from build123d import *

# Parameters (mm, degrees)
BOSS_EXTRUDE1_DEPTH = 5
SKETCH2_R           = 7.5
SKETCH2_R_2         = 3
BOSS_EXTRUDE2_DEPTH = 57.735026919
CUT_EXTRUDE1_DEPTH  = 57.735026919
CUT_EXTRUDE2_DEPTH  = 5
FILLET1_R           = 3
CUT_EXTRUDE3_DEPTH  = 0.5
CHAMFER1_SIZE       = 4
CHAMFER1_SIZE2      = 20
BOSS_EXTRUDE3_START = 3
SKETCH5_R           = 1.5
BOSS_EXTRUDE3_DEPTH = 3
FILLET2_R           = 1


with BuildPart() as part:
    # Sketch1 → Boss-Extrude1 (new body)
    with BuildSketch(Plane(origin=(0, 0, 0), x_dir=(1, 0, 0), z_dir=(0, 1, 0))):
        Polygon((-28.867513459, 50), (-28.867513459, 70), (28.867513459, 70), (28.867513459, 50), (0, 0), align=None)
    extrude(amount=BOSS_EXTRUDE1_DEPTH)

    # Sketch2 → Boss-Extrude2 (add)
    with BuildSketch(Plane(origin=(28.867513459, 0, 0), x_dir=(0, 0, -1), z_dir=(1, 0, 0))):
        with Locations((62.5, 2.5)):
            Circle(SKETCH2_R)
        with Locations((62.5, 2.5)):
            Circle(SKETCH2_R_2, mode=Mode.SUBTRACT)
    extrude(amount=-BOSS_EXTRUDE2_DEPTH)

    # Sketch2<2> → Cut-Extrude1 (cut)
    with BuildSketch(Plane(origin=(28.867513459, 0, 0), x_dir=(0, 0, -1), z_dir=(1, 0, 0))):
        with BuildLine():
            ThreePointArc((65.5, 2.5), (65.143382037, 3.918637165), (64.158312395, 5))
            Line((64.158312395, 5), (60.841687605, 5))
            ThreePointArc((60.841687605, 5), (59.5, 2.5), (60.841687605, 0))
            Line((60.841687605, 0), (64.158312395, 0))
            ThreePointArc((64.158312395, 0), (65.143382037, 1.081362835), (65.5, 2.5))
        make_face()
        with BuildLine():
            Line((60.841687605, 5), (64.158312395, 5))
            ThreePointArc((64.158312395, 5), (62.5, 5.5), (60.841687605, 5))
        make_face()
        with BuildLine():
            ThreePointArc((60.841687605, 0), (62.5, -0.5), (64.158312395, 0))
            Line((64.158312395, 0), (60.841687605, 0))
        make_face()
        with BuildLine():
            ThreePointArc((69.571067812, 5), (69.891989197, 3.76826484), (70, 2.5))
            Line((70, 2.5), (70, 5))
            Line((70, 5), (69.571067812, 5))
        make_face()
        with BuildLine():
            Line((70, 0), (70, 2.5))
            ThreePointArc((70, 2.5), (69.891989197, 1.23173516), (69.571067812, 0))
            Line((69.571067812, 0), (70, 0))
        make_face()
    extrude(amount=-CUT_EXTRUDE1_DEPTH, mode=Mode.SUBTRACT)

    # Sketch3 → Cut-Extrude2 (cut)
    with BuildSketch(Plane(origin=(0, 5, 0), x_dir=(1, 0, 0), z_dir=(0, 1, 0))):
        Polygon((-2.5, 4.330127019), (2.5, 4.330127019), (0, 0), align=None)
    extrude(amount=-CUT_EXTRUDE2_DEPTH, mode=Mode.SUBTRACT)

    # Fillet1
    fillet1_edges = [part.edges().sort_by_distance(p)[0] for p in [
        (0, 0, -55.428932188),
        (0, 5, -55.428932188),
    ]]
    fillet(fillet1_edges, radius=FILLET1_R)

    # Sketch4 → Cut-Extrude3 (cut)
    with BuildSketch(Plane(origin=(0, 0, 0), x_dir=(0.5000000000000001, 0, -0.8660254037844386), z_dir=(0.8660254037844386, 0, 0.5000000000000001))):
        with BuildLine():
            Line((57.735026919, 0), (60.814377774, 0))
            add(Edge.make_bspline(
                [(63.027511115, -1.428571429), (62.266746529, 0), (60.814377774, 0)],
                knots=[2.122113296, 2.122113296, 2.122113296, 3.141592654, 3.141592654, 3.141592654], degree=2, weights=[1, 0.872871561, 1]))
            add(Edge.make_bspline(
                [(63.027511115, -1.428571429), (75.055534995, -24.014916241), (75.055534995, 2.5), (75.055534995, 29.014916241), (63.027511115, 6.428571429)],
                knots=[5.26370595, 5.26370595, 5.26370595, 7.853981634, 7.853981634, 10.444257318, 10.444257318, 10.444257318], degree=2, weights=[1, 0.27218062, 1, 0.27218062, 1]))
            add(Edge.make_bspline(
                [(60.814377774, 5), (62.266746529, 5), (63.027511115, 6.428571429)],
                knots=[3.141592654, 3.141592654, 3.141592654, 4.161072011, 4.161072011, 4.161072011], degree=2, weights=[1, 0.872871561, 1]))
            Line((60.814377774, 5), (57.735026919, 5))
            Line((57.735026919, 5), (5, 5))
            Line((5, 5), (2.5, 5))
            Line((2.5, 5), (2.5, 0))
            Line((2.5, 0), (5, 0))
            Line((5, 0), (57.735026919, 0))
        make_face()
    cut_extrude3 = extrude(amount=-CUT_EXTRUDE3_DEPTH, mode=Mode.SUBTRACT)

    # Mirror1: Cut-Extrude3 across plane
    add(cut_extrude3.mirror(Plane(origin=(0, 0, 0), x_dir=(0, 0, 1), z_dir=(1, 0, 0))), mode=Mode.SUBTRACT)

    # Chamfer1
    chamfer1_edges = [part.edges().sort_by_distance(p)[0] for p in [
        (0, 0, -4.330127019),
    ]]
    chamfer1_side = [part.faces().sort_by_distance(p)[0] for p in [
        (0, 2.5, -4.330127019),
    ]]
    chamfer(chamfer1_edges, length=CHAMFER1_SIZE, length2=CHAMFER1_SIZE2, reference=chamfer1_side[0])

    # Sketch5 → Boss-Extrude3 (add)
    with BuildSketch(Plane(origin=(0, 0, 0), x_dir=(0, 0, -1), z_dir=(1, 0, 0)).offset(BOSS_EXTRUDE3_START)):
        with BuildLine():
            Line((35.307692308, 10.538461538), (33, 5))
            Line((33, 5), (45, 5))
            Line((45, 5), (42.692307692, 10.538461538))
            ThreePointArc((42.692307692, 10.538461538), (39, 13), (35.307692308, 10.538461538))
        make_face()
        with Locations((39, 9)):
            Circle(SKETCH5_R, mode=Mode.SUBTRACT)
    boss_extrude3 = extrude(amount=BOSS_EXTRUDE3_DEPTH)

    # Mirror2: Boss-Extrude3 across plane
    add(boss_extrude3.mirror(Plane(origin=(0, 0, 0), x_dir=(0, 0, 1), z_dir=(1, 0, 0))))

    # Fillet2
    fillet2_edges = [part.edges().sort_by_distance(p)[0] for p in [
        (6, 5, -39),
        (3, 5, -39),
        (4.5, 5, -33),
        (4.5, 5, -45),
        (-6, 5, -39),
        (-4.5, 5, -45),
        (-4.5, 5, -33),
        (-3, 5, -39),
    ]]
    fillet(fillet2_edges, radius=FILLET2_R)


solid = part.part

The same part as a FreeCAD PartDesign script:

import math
import FreeCAD as App
import Part
import Sketcher
from FreeCAD import Vector
Q = App.Units.Quantity


def edges_at(feature, points):
    """Names of the edges that pass closest to the given points."""
    edges = feature.Shape.Edges
    near = lambda p: min(range(len(edges)), key=lambda i: edges[i].distToShape(Part.Vertex(*p))[0])
    return sorted({f"Edge{near(p) + 1}" for p in points})

doc = App.newDocument("Part")
body = doc.addObject("PartDesign::Body", "Body")

sketch1 = body.newObject("Sketcher::SketchObject", "Sketch")
sketch1.AttachmentSupport = (doc.getObject("XZ_Plane"), [""])
sketch1.MapMode = "FlatFace"
sketch1.addGeometry([
    Part.LineSegment(Vector(-28.867513, -70, 0), Vector(-28.867513, -50, 0)),
    Part.LineSegment(Vector(-28.867513, -50, 0), Vector(0, 0, 0)),
    Part.LineSegment(Vector(0, 0, 0), Vector(28.867513, -50, 0)),
    Part.LineSegment(Vector(28.867513, -50, 0), Vector(28.867513, -70, 0)),
    Part.LineSegment(Vector(28.867513, -70, 0), Vector(-28.867513, -70, 0)),
], False)
sketch1.addConstraint([
    Sketcher.Constraint("Coincident", 0, 2, 1, 1),
    Sketcher.Constraint("Coincident", 1, 2, 2, 1),
    Sketcher.Constraint("Coincident", 2, 2, 3, 1),
    Sketcher.Constraint("Coincident", 3, 2, 4, 1),
    Sketcher.Constraint("Coincident", 4, 2, 0, 1),
    Sketcher.Constraint("Vertical", 0),
    Sketcher.Constraint("Vertical", 3),
    Sketcher.Constraint("Horizontal", 4),
    Sketcher.Constraint("Coincident", 1, 2, -1, 1),
    Sketcher.Constraint("Symmetric", 0, 2, 2, 2, -2),
    Sketcher.Constraint("DistanceY", 0, 1, 0, 2, Q("20 mm")),
    Sketcher.Constraint("Angle", 1, Q("60 deg")),
    Sketcher.Constraint("DistanceY", 0, 2, -1, 1, Q("50 mm")),
])
pad1 = body.newObject("PartDesign::Pad", "Pad")
pad1.Profile = sketch1
pad1.Length = 5
pad1.Reversed = True

sketch2 = body.newObject("Sketcher::SketchObject", "Sketch001")
sketch2.AttachmentSupport = (doc.getObject("YZ_Plane"), [""])
sketch2.MapMode = "FlatFace"
sketch2.AttachmentOffset = App.Placement(Vector(0, 0, 28.867513), App.Rotation())
sketch2.addGeometry([
    Part.Circle(Vector(2.5, -62.5, 0), Vector(0, 0, 1), 7.5),
    Part.Circle(Vector(2.5, -62.5, 0), Vector(0, 0, 1), 3),
], False)
sketch2.addConstraint([
    Sketcher.Constraint("Coincident", 1, 3, 0, 3),
    Sketcher.Constraint("Diameter", 0, Q("15 mm")),
    Sketcher.Constraint("Diameter", 1, Q("6 mm")),
    Sketcher.Constraint("DistanceX", -1, 1, 0, 3, Q("2.5 mm")),
    Sketcher.Constraint("DistanceY", 0, 3, -1, 1, Q("62.5 mm")),
])
pad2 = body.newObject("PartDesign::Pad", "Pad001")
pad2.Profile = sketch2
pad2.Length = 57.735027
pad2.Reversed = True

sketch3 = body.newObject("Sketcher::SketchObject", "Sketch002")
sketch3.AttachmentSupport = (doc.getObject("YZ_Plane"), [""])
sketch3.MapMode = "FlatFace"
sketch3.AttachmentOffset = App.Placement(Vector(0, 0, 28.867513), App.Rotation())
sketch3.addGeometry([
    Part.ArcOfCircle(Part.Circle(Vector(2.5, -62.5, 0), Vector(0, 0, 1), 3), math.radians(-90), math.radians(-33.55731)),
    Part.ArcOfCircle(Part.Circle(Vector(2.5, -62.5, 0), Vector(0, 0, 1), 3), math.radians(-33.55731), math.radians(33.55731)),
    Part.ArcOfCircle(Part.Circle(Vector(2.5, -62.5, 0), Vector(0, 0, 1), 3), math.radians(33.55731), math.radians(146.44269)),
    Part.ArcOfCircle(Part.Circle(Vector(2.5, -62.5, 0), Vector(0, 0, 1), 3), math.radians(146.44269), math.radians(213.55731)),
    Part.ArcOfCircle(Part.Circle(Vector(2.5, -62.5, 0), Vector(0, 0, 1), 3), math.radians(-146.44269), math.radians(-90)),
    Part.ArcOfCircle(Part.Circle(Vector(2.5, -62.5, 0), Vector(0, 0, 1), 7.5), math.radians(-90), math.radians(-70.528779)),
    Part.LineSegment(Vector(2.5, -70, 0), Vector(5, -70, 0)),
    Part.LineSegment(Vector(5, -70, 0), Vector(5, -69.571068, 0)),
    Part.LineSegment(Vector(0, -70, 0), Vector(2.5, -70, 0)),
    Part.ArcOfCircle(Part.Circle(Vector(2.5, -62.5, 0), Vector(0, 0, 1), 7.5), math.radians(-109.471221), math.radians(-90)),
    Part.LineSegment(Vector(0, -69.571068, 0), Vector(0, -70, 0)),
], False)
sketch3.addConstraint([
    Sketcher.Constraint("Tangent", 0, 2, 1, 1),
    Sketcher.Constraint("Tangent", 1, 2, 2, 1),
    Sketcher.Constraint("Tangent", 2, 2, 3, 1),
    Sketcher.Constraint("Tangent", 3, 2, 4, 1),
    Sketcher.Constraint("Tangent", 4, 2, 0, 1),
    Sketcher.Constraint("Tangent", 5, 1, 6, 1),
    Sketcher.Constraint("Coincident", 6, 2, 7, 1),
    Sketcher.Constraint("Coincident", 7, 2, 5, 2),
    Sketcher.Constraint("Tangent", 8, 2, 9, 2),
    Sketcher.Constraint("Coincident", 9, 1, 10, 1),
    Sketcher.Constraint("Coincident", 10, 2, 8, 1),
    Sketcher.Constraint("Horizontal", 6),
    Sketcher.Constraint("Vertical", 7),
    Sketcher.Constraint("Horizontal", 8),
    Sketcher.Constraint("Vertical", 10),
    Sketcher.Constraint("Coincident", 2, 3, 0, 3),
    Sketcher.Constraint("Coincident", 5, 3, 0, 3),
    Sketcher.Constraint("Coincident", 9, 3, 0, 3),
    Sketcher.Constraint("Equal", 5, 9),
    Sketcher.Constraint("PointOnObject", 2, 2, -2),
    Sketcher.Constraint("PointOnObject", 3, 2, -2),
    Sketcher.Constraint("PointOnObject", 9, 1, -2),
    Sketcher.Constraint("Horizontal", 1, 2, 2, 2),
    Sketcher.Constraint("Horizontal", 0, 2, 3, 2),
    Sketcher.Constraint("Horizontal", 7, 2, 9, 1),
    Sketcher.Constraint("Vertical", 9, 3, 4, 2),
    Sketcher.Constraint("Radius", 0, Q("3 mm")),
    Sketcher.Constraint("Radius", 5, Q("7.5 mm")),
    Sketcher.Constraint("DistanceX", 6, 1, 6, 2, Q("2.5 mm")),
    Sketcher.Constraint("DistanceY", 5, 1, -1, 1, Q("70 mm")),
])
pocket1 = body.newObject("PartDesign::Pocket", "Pocket")
pocket1.Profile = sketch3
pocket1.Length = 57.735027

sketch4 = body.newObject("Sketcher::SketchObject", "Sketch003")
sketch4.AttachmentSupport = (doc.getObject("XZ_Plane"), [""])
sketch4.MapMode = "FlatFace"
sketch4.AttachmentOffset = App.Placement(Vector(0, 0, -5), App.Rotation())
sketch4.addGeometry([
    Part.LineSegment(Vector(2.5, -4.330127, 0), Vector(-2.5, -4.330127, 0)),
    Part.LineSegment(Vector(-2.5, -4.330127, 0), Vector(0, 0, 0)),
    Part.LineSegment(Vector(0, 0, 0), Vector(2.5, -4.330127, 0)),
], False)
sketch4.addConstraint([
    Sketcher.Constraint("Coincident", 0, 2, 1, 1),
    Sketcher.Constraint("Coincident", 1, 2, 2, 1),
    Sketcher.Constraint("Coincident", 2, 2, 0, 1),
    Sketcher.Constraint("Horizontal", 0),
    Sketcher.Constraint("Coincident", 1, 2, -1, 1),
    Sketcher.Constraint("Equal", 1, 2),
    Sketcher.Constraint("DistanceX", 0, 2, 0, 1, Q("5 mm")),
    Sketcher.Constraint("Angle", 1, Q("60 deg")),
])
pocket2 = body.newObject("PartDesign::Pocket", "Pocket001")
pocket2.Profile = sketch4
pocket2.Length = 5
pocket2.Reversed = True
doc.recompute()

fillet = body.newObject("PartDesign::Fillet", "Fillet")
fillet.Base = (pocket2, edges_at(pocket2, [(0, 0, -55.429), (0, 5, -55.429)]))
fillet.Radius = 3

sketch5 = body.newObject("Sketcher::SketchObject", "Sketch004")
sketch5.Placement = App.Placement(Vector(0, 0, 0), App.Rotation(Vector(0.5, 0, -0.866025404), Vector(0, 1, 0), Vector(0.866025404, 0, 0.5), "ZXY"))
sketch5.addGeometry([
    Part.BSplineCurve([Vector(63.027511, -1.428571, 0), Vector(62.266747, 0, 0), Vector(60.814378, 0, 0)], [3, 3], [2.122113296, 3.141592654], False, 2, [1, 0.872871561, 1], False),
    Part.BSplineCurve([Vector(63.027511, -1.428571, 0), Vector(75.055535, -24.014916, 0), Vector(75.055535, 2.5, 0), Vector(75.055535, 29.014916, 0), Vector(63.027511, 6.428571, 0)], [3, 2, 3], [5.26370595, 7.853981634, 10.444257318], False, 2, [1, 0.27218062, 1, 0.27218062, 1], False),
    Part.BSplineCurve([Vector(60.814378, 5, 0), Vector(62.266747, 5, 0), Vector(63.027511, 6.428571, 0)], [3, 3], [3.141592654, 4.161072011], False, 2, [1, 0.872871561, 1], False),
    Part.LineSegment(Vector(60.814378, 5, 0), Vector(2.5, 5, 0)),
    Part.LineSegment(Vector(2.5, 5, 0), Vector(2.5, 0, 0)),
    Part.LineSegment(Vector(2.5, 0, 0), Vector(60.814378, 0, 0)),
], False)
sketch5.addConstraint([
    Sketcher.Constraint("Block", 0),
    Sketcher.Constraint("Block", 1),
    Sketcher.Constraint("Block", 2),
    Sketcher.Constraint("Coincident", 2, 1, 3, 1),
    Sketcher.Constraint("Coincident", 3, 2, 4, 1),
    Sketcher.Constraint("Coincident", 4, 2, 5, 1),
    Sketcher.Constraint("Coincident", 5, 2, 0, 2),
    Sketcher.Constraint("Horizontal", 3),
    Sketcher.Constraint("Vertical", 4),
    Sketcher.Constraint("Horizontal", 5),
    Sketcher.Constraint("DistanceX", -1, 1, 3, 2, Q("2.5 mm")),
])
pocket3 = body.newObject("PartDesign::Pocket", "Pocket002")
pocket3.Profile = sketch5
pocket3.Length = 0.5
doc.recompute()

mirrored = body.newObject("PartDesign::Mirrored", "Mirrored")
mirrored.Originals = [pocket3]
mirrored.MirrorPlane = (doc.getObject("YZ_Plane"), [""])
body.Tip = mirrored
doc.recompute()

chamfer = body.newObject("PartDesign::Chamfer", "Chamfer")
chamfer.Base = (mirrored, edges_at(mirrored, [(0, 0, -4.33)]))
chamfer.ChamferType = "Two distances"
chamfer.Size = 4
chamfer.Size2 = 20
chamfer.FlipDirection = True

sketch6 = body.newObject("Sketcher::SketchObject", "Sketch005")
sketch6.AttachmentSupport = (doc.getObject("YZ_Plane"), [""])
sketch6.MapMode = "FlatFace"
sketch6.AttachmentOffset = App.Placement(Vector(0, 0, 3), App.Rotation())
sketch6.addGeometry([
    Part.LineSegment(Vector(10.538462, -35.307692, 0), Vector(5, -33, 0)),
    Part.LineSegment(Vector(5, -33, 0), Vector(5, -45, 0)),
    Part.LineSegment(Vector(5, -45, 0), Vector(10.538462, -42.692308, 0)),
    Part.ArcOfCircle(Part.Circle(Vector(9, -39, 0), Vector(0, 0, 1), 4), math.radians(-67.380135), math.radians(67.380135)),
    Part.Circle(Vector(9, -39, 0), Vector(0, 0, 1), 1.5),
], False)
sketch6.addConstraint([
    Sketcher.Constraint("Coincident", 0, 2, 1, 1),
    Sketcher.Constraint("Coincident", 1, 2, 2, 1),
    Sketcher.Constraint("Tangent", 2, 2, 3, 1),
    Sketcher.Constraint("Tangent", 3, 2, 0, 1),
    Sketcher.Constraint("Vertical", 1),
    Sketcher.Constraint("Coincident", 4, 3, 3, 3),
    Sketcher.Constraint("Vertical", 2, 2, 3, 2),
    Sketcher.Constraint("Diameter", 4, Q("3 mm")),
    Sketcher.Constraint("Radius", 3, Q("4 mm")),
    Sketcher.Constraint("DistanceY", 1, 2, 1, 1, Q("12 mm")),
    Sketcher.Constraint("Distance", 0, Q("6 mm")),
    Sketcher.Constraint("DistanceX", -1, 1, 3, 3, Q("9 mm")),
    Sketcher.Constraint("DistanceY", 3, 3, -1, 1, Q("39 mm")),
])
pad3 = body.newObject("PartDesign::Pad", "Pad002")
pad3.Profile = sketch6
pad3.Length = 3
doc.recompute()

mirrored2 = body.newObject("PartDesign::Mirrored", "Mirrored001")
mirrored2.Originals = [pad3]
mirrored2.MirrorPlane = (doc.getObject("YZ_Plane"), [""])
body.Tip = mirrored2
doc.recompute()

fillet2 = body.newObject("PartDesign::Fillet", "Fillet001")
fillet2.Base = (mirrored2, edges_at(mirrored2, [
    (6, 5, -39),
    (3, 5, -39),
    (4.5, 5, -33),
    (4.5, 5, -45),
    (-6, 5, -39),
    (-4.5, 5, -45),
    (-4.5, 5, -33),
    (-3, 5, -39),
]))
fillet2.Radius = 1

doc.recompute()
